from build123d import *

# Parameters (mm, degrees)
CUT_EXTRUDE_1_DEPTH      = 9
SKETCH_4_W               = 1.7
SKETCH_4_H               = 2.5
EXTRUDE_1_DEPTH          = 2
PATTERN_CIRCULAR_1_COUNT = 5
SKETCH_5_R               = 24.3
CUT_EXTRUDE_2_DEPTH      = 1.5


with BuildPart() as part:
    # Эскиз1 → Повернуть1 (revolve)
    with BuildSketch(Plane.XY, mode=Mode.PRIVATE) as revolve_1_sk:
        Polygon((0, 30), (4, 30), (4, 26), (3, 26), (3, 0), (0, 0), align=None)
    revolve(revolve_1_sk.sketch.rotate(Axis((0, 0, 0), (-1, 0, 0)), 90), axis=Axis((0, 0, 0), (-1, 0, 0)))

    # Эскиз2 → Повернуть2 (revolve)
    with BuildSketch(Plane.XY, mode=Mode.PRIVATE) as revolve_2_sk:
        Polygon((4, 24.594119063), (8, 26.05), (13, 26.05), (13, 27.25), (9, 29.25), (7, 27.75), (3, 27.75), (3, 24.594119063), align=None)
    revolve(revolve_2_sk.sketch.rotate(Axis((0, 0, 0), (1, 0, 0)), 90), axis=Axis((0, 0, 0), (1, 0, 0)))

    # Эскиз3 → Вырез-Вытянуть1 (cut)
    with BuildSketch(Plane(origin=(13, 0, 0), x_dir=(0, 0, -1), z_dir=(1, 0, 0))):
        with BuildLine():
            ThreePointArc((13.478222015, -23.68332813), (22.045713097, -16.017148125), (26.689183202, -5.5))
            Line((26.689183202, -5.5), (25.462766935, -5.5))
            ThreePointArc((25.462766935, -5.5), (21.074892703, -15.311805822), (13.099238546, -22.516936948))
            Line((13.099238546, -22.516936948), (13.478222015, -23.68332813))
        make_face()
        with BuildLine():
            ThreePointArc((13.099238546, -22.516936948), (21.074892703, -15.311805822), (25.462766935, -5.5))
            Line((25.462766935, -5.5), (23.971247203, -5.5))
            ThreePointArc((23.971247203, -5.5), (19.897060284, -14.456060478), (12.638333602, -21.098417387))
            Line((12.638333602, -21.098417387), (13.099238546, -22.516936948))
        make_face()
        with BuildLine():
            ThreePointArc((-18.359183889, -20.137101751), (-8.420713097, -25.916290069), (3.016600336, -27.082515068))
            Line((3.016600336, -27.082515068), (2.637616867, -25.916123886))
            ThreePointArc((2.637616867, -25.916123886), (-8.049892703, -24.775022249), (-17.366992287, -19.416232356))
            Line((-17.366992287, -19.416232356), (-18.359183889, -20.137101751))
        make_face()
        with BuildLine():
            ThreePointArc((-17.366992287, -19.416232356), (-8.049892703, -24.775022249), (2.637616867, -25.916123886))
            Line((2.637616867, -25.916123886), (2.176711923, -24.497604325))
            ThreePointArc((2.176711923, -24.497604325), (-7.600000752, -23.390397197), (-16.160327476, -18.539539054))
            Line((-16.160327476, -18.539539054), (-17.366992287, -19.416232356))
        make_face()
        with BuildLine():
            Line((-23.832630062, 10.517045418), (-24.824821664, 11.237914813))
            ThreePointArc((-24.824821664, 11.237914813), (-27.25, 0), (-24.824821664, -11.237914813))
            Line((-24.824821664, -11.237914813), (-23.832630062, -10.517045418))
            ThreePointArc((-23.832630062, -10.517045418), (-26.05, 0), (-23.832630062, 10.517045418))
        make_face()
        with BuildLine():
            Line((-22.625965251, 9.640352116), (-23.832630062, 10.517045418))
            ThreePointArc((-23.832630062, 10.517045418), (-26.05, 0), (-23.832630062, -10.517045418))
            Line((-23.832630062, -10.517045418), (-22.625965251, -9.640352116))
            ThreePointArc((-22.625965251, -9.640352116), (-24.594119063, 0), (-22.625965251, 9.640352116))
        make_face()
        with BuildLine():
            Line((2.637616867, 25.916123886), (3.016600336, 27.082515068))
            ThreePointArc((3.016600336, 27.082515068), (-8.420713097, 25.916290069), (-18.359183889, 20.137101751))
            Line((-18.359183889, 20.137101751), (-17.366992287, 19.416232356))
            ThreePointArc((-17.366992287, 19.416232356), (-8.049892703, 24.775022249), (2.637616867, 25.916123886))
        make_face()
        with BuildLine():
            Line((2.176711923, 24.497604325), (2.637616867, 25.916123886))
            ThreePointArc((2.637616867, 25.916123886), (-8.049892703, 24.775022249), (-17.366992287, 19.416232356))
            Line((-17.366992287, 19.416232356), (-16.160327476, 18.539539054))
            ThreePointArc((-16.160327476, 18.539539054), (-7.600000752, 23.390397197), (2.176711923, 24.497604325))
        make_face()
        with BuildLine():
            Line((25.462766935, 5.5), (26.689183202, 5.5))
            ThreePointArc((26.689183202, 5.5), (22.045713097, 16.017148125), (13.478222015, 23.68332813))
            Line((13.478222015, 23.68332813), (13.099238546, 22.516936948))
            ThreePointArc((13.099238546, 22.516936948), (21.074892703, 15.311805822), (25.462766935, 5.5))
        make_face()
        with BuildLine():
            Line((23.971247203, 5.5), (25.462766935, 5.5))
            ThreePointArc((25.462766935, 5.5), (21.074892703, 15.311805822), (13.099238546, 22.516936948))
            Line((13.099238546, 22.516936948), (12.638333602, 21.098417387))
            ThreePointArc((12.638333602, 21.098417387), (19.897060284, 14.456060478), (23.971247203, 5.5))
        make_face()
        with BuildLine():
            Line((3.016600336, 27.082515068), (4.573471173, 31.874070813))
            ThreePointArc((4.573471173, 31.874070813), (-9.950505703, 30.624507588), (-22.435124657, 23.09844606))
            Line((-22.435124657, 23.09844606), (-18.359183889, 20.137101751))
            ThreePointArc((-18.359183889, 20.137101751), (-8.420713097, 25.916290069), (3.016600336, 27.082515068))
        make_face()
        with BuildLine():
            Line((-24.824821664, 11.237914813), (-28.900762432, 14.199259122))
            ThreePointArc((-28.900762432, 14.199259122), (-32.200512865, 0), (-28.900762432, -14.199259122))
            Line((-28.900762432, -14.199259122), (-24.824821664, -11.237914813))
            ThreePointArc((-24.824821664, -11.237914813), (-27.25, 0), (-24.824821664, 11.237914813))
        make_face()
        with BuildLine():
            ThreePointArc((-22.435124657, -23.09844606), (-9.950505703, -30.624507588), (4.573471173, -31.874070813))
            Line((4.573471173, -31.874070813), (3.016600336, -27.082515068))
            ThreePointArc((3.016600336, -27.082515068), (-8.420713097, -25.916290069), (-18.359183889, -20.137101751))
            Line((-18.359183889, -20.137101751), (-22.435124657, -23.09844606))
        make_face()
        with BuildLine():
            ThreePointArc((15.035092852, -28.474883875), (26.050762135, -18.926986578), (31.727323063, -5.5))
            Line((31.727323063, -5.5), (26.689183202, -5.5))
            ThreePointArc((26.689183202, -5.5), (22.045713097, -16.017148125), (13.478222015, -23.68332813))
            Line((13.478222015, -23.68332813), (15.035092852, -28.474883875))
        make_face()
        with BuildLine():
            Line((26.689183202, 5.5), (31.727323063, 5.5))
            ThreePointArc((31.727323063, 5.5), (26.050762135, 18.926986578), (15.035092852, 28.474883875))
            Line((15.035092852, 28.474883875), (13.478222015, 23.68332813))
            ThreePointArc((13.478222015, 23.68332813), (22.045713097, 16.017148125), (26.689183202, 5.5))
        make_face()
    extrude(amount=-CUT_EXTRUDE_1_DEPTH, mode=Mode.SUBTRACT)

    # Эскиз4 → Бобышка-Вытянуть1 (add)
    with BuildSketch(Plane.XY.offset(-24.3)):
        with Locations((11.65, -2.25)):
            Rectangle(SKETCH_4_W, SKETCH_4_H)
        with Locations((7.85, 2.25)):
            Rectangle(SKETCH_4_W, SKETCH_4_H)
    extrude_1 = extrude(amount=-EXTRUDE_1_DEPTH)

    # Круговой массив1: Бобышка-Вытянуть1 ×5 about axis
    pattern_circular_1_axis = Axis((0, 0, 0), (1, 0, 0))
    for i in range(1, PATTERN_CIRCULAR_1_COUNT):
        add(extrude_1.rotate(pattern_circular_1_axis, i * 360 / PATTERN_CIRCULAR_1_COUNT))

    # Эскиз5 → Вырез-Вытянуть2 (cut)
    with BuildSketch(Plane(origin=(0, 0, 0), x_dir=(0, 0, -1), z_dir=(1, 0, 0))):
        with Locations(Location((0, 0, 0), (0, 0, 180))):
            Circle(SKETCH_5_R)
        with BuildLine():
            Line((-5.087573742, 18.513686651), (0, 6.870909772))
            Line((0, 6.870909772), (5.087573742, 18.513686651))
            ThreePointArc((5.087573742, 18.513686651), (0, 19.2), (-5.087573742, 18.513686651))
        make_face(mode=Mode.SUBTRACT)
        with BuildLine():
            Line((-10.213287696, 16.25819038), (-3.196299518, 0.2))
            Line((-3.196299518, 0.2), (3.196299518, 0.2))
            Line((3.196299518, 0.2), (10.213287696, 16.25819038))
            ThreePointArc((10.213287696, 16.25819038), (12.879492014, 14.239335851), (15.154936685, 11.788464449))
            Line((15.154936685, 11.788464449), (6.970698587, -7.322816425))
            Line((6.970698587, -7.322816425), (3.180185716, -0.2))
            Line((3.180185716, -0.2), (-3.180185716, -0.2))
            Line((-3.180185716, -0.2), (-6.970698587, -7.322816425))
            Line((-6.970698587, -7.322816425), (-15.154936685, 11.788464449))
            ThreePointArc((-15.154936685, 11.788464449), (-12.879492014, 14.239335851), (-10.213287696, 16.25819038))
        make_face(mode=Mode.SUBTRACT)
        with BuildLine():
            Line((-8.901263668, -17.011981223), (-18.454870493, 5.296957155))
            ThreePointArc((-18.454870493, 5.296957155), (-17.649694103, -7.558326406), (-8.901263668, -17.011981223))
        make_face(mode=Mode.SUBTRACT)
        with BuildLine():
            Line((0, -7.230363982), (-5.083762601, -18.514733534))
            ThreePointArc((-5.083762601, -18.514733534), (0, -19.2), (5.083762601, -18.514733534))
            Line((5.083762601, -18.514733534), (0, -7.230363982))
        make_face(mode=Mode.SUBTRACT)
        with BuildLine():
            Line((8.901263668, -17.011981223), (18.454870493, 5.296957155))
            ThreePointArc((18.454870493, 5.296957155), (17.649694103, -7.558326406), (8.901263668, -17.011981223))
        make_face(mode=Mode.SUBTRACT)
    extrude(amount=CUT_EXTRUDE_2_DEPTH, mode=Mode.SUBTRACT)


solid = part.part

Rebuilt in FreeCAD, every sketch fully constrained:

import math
import FreeCAD as App
import Part
import Sketcher
Q = App.Units.Quantity

doc = App.newDocument("Part")
params = doc.addObject("Spreadsheet::Sheet", "Params")
for row, (alias, value) in enumerate([
    ("sketch1_width", "4 mm"),
    ("sketch1_width2", "3 mm"),
    ("sketch1_height", "30 mm"),
    ("revolution_angle", "360 deg"),
    ("sketch2_width", "5 mm"),
    ("sketch2_width2", "4 mm"),
    ("sketch2_width3", "1 mm"),
    ("sketch2_height", "1.2 mm"),
    ("sketch2_length", "2.5 mm"),
    ("revolution2_angle", "360 deg"),
    ("pocket1_length", "9 mm"),
    ("sketch4_width", "1.7 mm"),
    ("sketch4_height", "2.5 mm"),
    ("pad1_length", "2 mm"),
    ("sketch5_diameter", "48.6 mm"),
    ("sketch5_radius", "19.2 mm"),
    ("pocket2_length", "1.5 mm"),
], start=1):
    params.set(f"A{row}", alias)
    params.set(f"B{row}", "=" + value)
    params.setAlias(f"B{row}", alias)

body = doc.addObject("PartDesign::Body", "Body")

sketch1 = body.newObject("Sketcher::SketchObject", "Sketch")
sketch1.AttachmentSupport = (doc.getObject("XY_Plane"), [""])
sketch1.MapMode = "FlatFace"
sketch1.addGeometry([
    Part.LineSegment(App.Vector(4, 30, 0), App.Vector(0, 30, 0)),
    Part.LineSegment(App.Vector(0, 30, 0), App.Vector(0, 0, 0)),
    Part.LineSegment(App.Vector(0, 0, 0), App.Vector(3, 0, 0)),
    Part.LineSegment(App.Vector(3, 0, 0), App.Vector(3, 26, 0)),
    Part.LineSegment(App.Vector(3, 26, 0), App.Vector(4, 26, 0)),
    Part.LineSegment(App.Vector(4, 26, 0), App.Vector(4, 30, 0)),
], False)
sketch1.addConstraint([
    Sketcher.Constraint("Coincident", 0, 2, 1, 1),
    Sketcher.Constraint("Coincident", 1, 2, 2, 1),
    Sketcher.Constraint("Coincident", 2, 2, 3, 1),
    Sketcher.Constraint("Coincident", 3, 2, 4, 1),
    Sketcher.Constraint("Coincident", 4, 2, 5, 1),
    Sketcher.Constraint("Coincident", 5, 2, 0, 1),
    Sketcher.Constraint("Horizontal", 0),
    Sketcher.Constraint("Vertical", 1),
    Sketcher.Constraint("Horizontal", 2),
    Sketcher.Constraint("Vertical", 3),
    Sketcher.Constraint("Horizontal", 4),
    Sketcher.Constraint("Vertical", 5),
    Sketcher.Constraint("Coincident", 1, 2, -1, 1),
    Sketcher.Constraint("Equal", 0, 5),
    Sketcher.Constraint("DistanceX", 0, 2, 0, 1, 4.0),
    Sketcher.Constraint("DistanceX", 2, 1, 2, 2, 3.0),
    Sketcher.Constraint("DistanceY", 1, 2, 1, 1, 30.0),
])
sketch1.setExpression("Constraints[14]", "Params.sketch1_width")
sketch1.setExpression("Constraints[15]", "Params.sketch1_width2")
sketch1.setExpression("Constraints[16]", "Params.sketch1_height")
revolution = body.newObject("PartDesign::Revolution", "Revolution")
revolution.Profile = sketch1
revolution.ReferenceAxis = (sketch1, ["H_Axis"])
revolution.setExpression("Angle", "Params.revolution_angle")

sketch2 = body.newObject("Sketcher::SketchObject", "Sketch001")
sketch2.AttachmentSupport = (doc.getObject("XY_Plane"), [""])
sketch2.MapMode = "FlatFace"
sketch2.addGeometry([
    Part.LineSegment(App.Vector(4, 24.6, 0), App.Vector(8, 26.1, 0)),
    Part.LineSegment(App.Vector(8, 26.1, 0), App.Vector(13, 26.1, 0)),
    Part.LineSegment(App.Vector(13, 26.1, 0), App.Vector(13, 27.2, 0)),
    Part.LineSegment(App.Vector(13, 27.2, 0), App.Vector(9, 29.2, 0)),
    Part.LineSegment(App.Vector(9, 29.2, 0), App.Vector(7, 27.8, 0)),
    Part.LineSegment(App.Vector(7, 27.8, 0), App.Vector(3, 27.8, 0)),
    Part.LineSegment(App.Vector(3, 27.8, 0), App.Vector(3, 24.6, 0)),
    Part.LineSegment(App.Vector(3, 24.6, 0), App.Vector(4, 24.6, 0)),
], False)
sketch2.addConstraint([
    Sketcher.Constraint("Coincident", 0, 2, 1, 1),
    Sketcher.Constraint("Coincident", 1, 2, 2, 1),
    Sketcher.Constraint("Coincident", 2, 2, 3, 1),
    Sketcher.Constraint("Coincident", 3, 2, 4, 1),
    Sketcher.Constraint("Coincident", 4, 2, 5, 1),
    Sketcher.Constraint("Coincident", 5, 2, 6, 1),
    Sketcher.Constraint("Coincident", 6, 2, 7, 1),
    Sketcher.Constraint("Coincident", 7, 2, 0, 1),
    Sketcher.Constraint("Horizontal", 1),
    Sketcher.Constraint("Vertical", 2),
    Sketcher.Constraint("Horizontal", 5),
    Sketcher.Constraint("Vertical", 6),
    Sketcher.Constraint("Horizontal", 7),
    Sketcher.Constraint("DistanceX", 1, 1, 1, 2, 5.0),
    Sketcher.Constraint("DistanceX", 5, 2, 5, 1, 4.0),
    Sketcher.Constraint("DistanceX", 7, 1, 7, 2, 1.0),
    Sketcher.Constraint("Angle", 0, Q("20 deg")),
    Sketcher.Constraint("DistanceY", 2, 1, 2, 2, 1.2),
    Sketcher.Constraint("DistanceX", -1, 1, 0, 2, 8.0),
    Sketcher.Constraint("DistanceX", -1, 1, 3, 2, 9.0),
    Sketcher.Constraint("DistanceX", -1, 1, 4, 2, 7.0),
    Sketcher.Constraint("DistanceY", 2, 2, 3, 2, 2.0),
    Sketcher.Constraint("Distance", 4, 2.5),
    Sketcher.Constraint("DistanceY", -1, 1, 0, 2, 26.05),
])
sketch2.setExpression("Constraints[13]", "Params.sketch2_width")
sketch2.setExpression("Constraints[14]", "Params.sketch2_width2")
sketch2.setExpression("Constraints[15]", "Params.sketch2_width3")
sketch2.setExpression("Constraints[17]", "Params.sketch2_height")
sketch2.setExpression("Constraints[22]", "Params.sketch2_length")
revolution2 = body.newObject("PartDesign::Revolution", "Revolution001")
revolution2.Profile = sketch2
revolution2.ReferenceAxis = (sketch2, ["H_Axis"])
revolution2.setExpression("Angle", "Params.revolution2_angle")

sketch3 = body.newObject("Sketcher::SketchObject", "Sketch002")
sketch3.AttachmentSupport = (doc.getObject("YZ_Plane"), [""])
sketch3.MapMode = "FlatFace"
sketch3.AttachmentOffset = App.Placement(App.Vector(0, 0, 13), App.Rotation())
sketch3.addGeometry([
    Part.ArcOfCircle(Part.Circle(App.Vector(0, 0, 0), App.Vector(0, 0, 1), 24.6), math.radians(-149), math.radians(-103)),
    Part.LineSegment(App.Vector(-21.1, -12.6, 0), App.Vector(-22.5, -13.1, 0)),
    Part.LineSegment(App.Vector(-22.5, -13.1, 0), App.Vector(-23.7, -13.5, 0)),
    Part.LineSegment(App.Vector(-23.7, -13.5, 0), App.Vector(-28.5, -15, 0)),
    Part.ArcOfCircle(Part.Circle(App.Vector(0, 0, 0), App.Vector(0, 0, 1), 32.2), math.radians(-152), math.radians(-100)),
    Part.LineSegment(App.Vector(-5.5, -31.7, 0), App.Vector(-5.5, -24, 0)),
    Part.LineSegment(App.Vector(-27.1, -3, 0), App.Vector(-25.9, -2.6, 0)),
    Part.LineSegment(App.Vector(-25.9, -2.6, 0), App.Vector(-24.5, -2.2, 0)),
    Part.ArcOfCircle(Part.Circle(App.Vector(0, 0, 0), App.Vector(0, 0, 1), 24.6), math.radians(139), math.radians(185)),
    Part.LineSegment(App.Vector(-18.5, 16.2, 0), App.Vector(-19.4, 17.4, 0)),
    Part.LineSegment(App.Vector(-19.4, 17.4, 0), App.Vector(-20.1, 18.4, 0)),
    Part.LineSegment(App.Vector(-20.1, 18.4, 0), App.Vector(-23.1, 22.4, 0)),
    Part.ArcOfCircle(Part.Circle(App.Vector(0, 0, 0), App.Vector(0, 0, 1), 32.2), math.radians(136), math.radians(188)),
    Part.LineSegment(App.Vector(-31.9, -4.6, 0), App.Vector(-27.1, -3, 0)),
    Part.LineSegment(App.Vector(10.5, 23.8, 0), App.Vector(11.2, 24.8, 0)),
    Part.LineSegment(App.Vector(11.2, 24.8, 0), App.Vector(14.2, 28.9, 0)),
    Part.ArcOfCircle(Part.Circle(App.Vector(0, 0, 0), App.Vector(0, 0, 1), 32.2), math.radians(64), math.radians(116)),
    Part.LineSegment(App.Vector(-14.2, 28.9, 0), App.Vector(-11.2, 24.8, 0)),
    Part.LineSegment(App.Vector(-11.2, 24.8, 0), App.Vector(-10.5, 23.8, 0)),
    Part.LineSegment(App.Vector(-10.5, 23.8, 0), App.Vector(-9.6, 22.6, 0)),
    Part.ArcOfCircle(Part.Circle(App.Vector(0, 0, 0), App.Vector(0, 0, 1), 24.6), math.radians(67), math.radians(113)),
    Part.LineSegment(App.Vector(9.6, 22.6, 0), App.Vector(10.5, 23.8, 0)),
    Part.LineSegment(App.Vector(25.9, -2.6, 0), App.Vector(27.1, -3, 0)),
    Part.LineSegment(App.Vector(27.1, -3, 0), App.Vector(31.9, -4.6, 0)),
    Part.ArcOfCircle(Part.Circle(App.Vector(0, 0, 0), App.Vector(0, 0, 1), 32.2), math.radians(-8), math.radians(44)),
    Part.LineSegment(App.Vector(23.1, 22.4, 0), App.Vector(20.1, 18.4, 0)),
    Part.LineSegment(App.Vector(20.1, 18.4, 0), App.Vector(19.4, 17.4, 0)),
    Part.LineSegment(App.Vector(19.4, 17.4, 0), App.Vector(18.5, 16.2, 0)),
    Part.ArcOfCircle(Part.Circle(App.Vector(0, 0, 0), App.Vector(0, 0, 1), 24.6), math.radians(-5), math.radians(41)),
    Part.LineSegment(App.Vector(24.5, -2.2, 0), App.Vector(25.9, -2.6, 0)),
    Part.LineSegment(App.Vector(23.7, -13.5, 0), App.Vector(22.5, -13.1, 0)),
    Part.LineSegment(App.Vector(22.5, -13.1, 0), App.Vector(21.1, -12.6, 0)),
    Part.ArcOfCircle(Part.Circle(App.Vector(0, 0, 0), App.Vector(0, 0, 1), 24.6), math.radians(-77), math.radians(-31)),
    Part.LineSegment(App.Vector(5.5, -24, 0), App.Vector(5.5, -31.7, 0)),
    Part.ArcOfCircle(Part.Circle(App.Vector(0, 0, 0), App.Vector(0, 0, 1), 32.2), math.radians(-80), math.radians(-28)),
    Part.LineSegment(App.Vector(28.5, -15, 0), App.Vector(23.7, -13.5, 0)),
], False)
sketch3.addConstraint([
    Sketcher.Constraint("Coincident", 0, 1, 1, 1),
    Sketcher.Constraint("Coincident", 1, 2, 2, 1),
    Sketcher.Constraint("Coincident", 2, 2, 3, 1),
    Sketcher.Constraint("Coincident", 3, 2, 4, 1),
    Sketcher.Constraint("Coincident", 4, 2, 5, 1),
    Sketcher.Constraint("Coincident", 5, 2, 0, 2),
    Sketcher.Constraint("Coincident", 6, 2, 7, 1),
    Sketcher.Constraint("Coincident", 7, 2, 8, 2),
    Sketcher.Constraint("Coincident", 8, 1, 9, 1),
    Sketcher.Constraint("Coincident", 9, 2, 10, 1),
    Sketcher.Constraint("Coincident", 10, 2, 11, 1),
    Sketcher.Constraint("Coincident", 11, 2, 12, 1),
    Sketcher.Constraint("Coincident", 12, 2, 13, 1),
    Sketcher.Constraint("Coincident", 13, 2, 6, 1),
    Sketcher.Constraint("Coincident", 14, 2, 15, 1),
    Sketcher.Constraint("Coincident", 15, 2, 16, 1),
    Sketcher.Constraint("Coincident", 16, 2, 17, 1),
    Sketcher.Constraint("Coincident", 17, 2, 18, 1),
    Sketcher.Constraint("Coincident", 18, 2, 19, 1),
    Sketcher.Constraint("Coincident", 19, 2, 20, 2),
    Sketcher.Constraint("Coincident", 20, 1, 21, 1),
    Sketcher.Constraint("Coincident", 21, 2, 14, 1),
    Sketcher.Constraint("Coincident", 22, 2, 23, 1),
    Sketcher.Constraint("Coincident", 23, 2, 24, 1),
    Sketcher.Constraint("Coincident", 24, 2, 25, 1),
    Sketcher.Constraint("Coincident", 25, 2, 26, 1),
    Sketcher.Constraint("Coincident", 26, 2, 27, 1),
    Sketcher.Constraint("Coincident", 27, 2, 28, 2),
    Sketcher.Constraint("Coincident", 28, 1, 29, 1),
    Sketcher.Constraint("Coincident", 29, 2, 22, 1),
    Sketcher.Constraint("Coincident", 30, 2, 31, 1),
    Sketcher.Constraint("Coincident", 31, 2, 32, 2),
    Sketcher.Constraint("Coincident", 32, 1, 33, 1),
    Sketcher.Constraint("Coincident", 33, 2, 34, 1),
    Sketcher.Constraint("Coincident", 34, 2, 35, 1),
    Sketcher.Constraint("Coincident", 35, 2, 30, 1),
    Sketcher.Constraint("Vertical", 5),
    Sketcher.Constraint("Vertical", 33),
    Sketcher.Constraint("Coincident", 0, 3, -1, 1),
    Sketcher.Constraint("Coincident", 4, 3, -1, 1),
    Sketcher.Constraint("Coincident", 8, 3, -1, 1),
    Sketcher.Constraint("Coincident", 12, 3, -1, 1),
    Sketcher.Constraint("Coincident", 16, 3, -1, 1),
    Sketcher.Constraint("Coincident", 20, 3, -1, 1),
    Sketcher.Constraint("Coincident", 24, 3, -1, 1),
    Sketcher.Constraint("Coincident", 28, 3, -1, 1),
    Sketcher.Constraint("Coincident", 32, 3, -1, 1),
    Sketcher.Constraint("Coincident", 34, 3, -1, 1),
    Sketcher.Constraint("Equal", 0, 8),
    Sketcher.Constraint("Equal", 4, 12),
    Sketcher.Constraint("Equal", 12, 16),
    Sketcher.Constraint("Equal", 8, 20),
    Sketcher.Constraint("Equal", 16, 24),
    Sketcher.Constraint("Equal", 20, 28),
    Sketcher.Constraint("Equal", 28, 32),
    Sketcher.Constraint("Equal", 24, 34),
    Sketcher.Constraint("Symmetric", 14, 2, 17, 2, -2),
    Sketcher.Constraint("Symmetric", 18, 2, 21, 2, -2),
    Sketcher.Constraint("Symmetric", 13, 2, 22, 2, -2),
    Sketcher.Constraint("Symmetric", 10, 2, 25, 2, -2),
    Sketcher.Constraint("Symmetric", 9, 2, 26, 2, -2),
    Sketcher.Constraint("Symmetric", 6, 2, 29, 2, -2),
    Sketcher.Constraint("Symmetric", 1, 2, 30, 2, -2),
    Sketcher.Constraint("Symmetric", 2, 2, 35, 2, -2),
    Sketcher.Constraint("Parallel", 1, 2),
    Sketcher.Constraint("Parallel", 2, 3),
    Sketcher.Constraint("Parallel", 3, 6),
    Sketcher.Constraint("Parallel", 6, 7),
    Sketcher.Constraint("Parallel", 9, 10),
    Sketcher.Constraint("Parallel", 10, 11),
    Sketcher.Constraint("Parallel", 7, 13),
    Sketcher.Constraint("Parallel", 14, 15),
    Sketcher.Constraint("Parallel", 11, 17),
    Sketcher.Constraint("Parallel", 17, 18),
    Sketcher.Constraint("Parallel", 18, 19),
    Sketcher.Constraint("Parallel", 15, 21),
    Sketcher.Constraint("Parallel", 22, 23),
    Sketcher.Constraint("Parallel", 21, 25),
    Sketcher.Constraint("Parallel", 26, 27),
    Sketcher.Constraint("Parallel", 23, 29),
    Sketcher.Constraint("Parallel", 30, 31),
    Sketcher.Constraint("Parallel", 31, 35),
    Sketcher.Constraint("Horizontal", 5, 2, 32, 1),
    Sketcher.Constraint("Equal", 2, 6),
    Sketcher.Constraint("Equal", 1, 7),
    Sketcher.Constraint("Equal", 7, 9),
    Sketcher.Constraint("Equal", 6, 10),
    Sketcher.Constraint("Equal", 3, 11),
    Sketcher.Constraint("Equal", 11, 13),
    Sketcher.Constraint("Equal", 10, 14),
    Sketcher.Constraint("Equal", 13, 15),
    Sketcher.Constraint("Equal", 9, 19),
    Sketcher.Constraint("Angle", 1, Q("-162 deg")),
    Sketcher.Constraint("Angle", 9, Q("126 deg")),
    Sketcher.Constraint("DistanceX", 5, 2, 32, 1, 11.0),
    Sketcher.Constraint("Radius", 0, 24.594119),
    Sketcher.Constraint("Radius", 4, 32.200513),
    Sketcher.Constraint("DistanceX", 10, 2, -1, 1, 20.137102),
    Sketcher.Constraint("DistanceY", 13, 2, -1, 1, 3.0166),
    Sketcher.Constraint("DistanceY", 6, 2, 10, 2, 20.996801),
])
pocket1 = body.newObject("PartDesign::Pocket", "Pocket")
pocket1.Profile = sketch3
pocket1.setExpression("Length", "Params.pocket1_length")

sketch4 = body.newObject("Sketcher::SketchObject", "Sketch003")
sketch4.AttachmentSupport = (doc.getObject("XY_Plane"), [""])
sketch4.MapMode = "FlatFace"
sketch4.AttachmentOffset = App.Placement(App.Vector(0, 0, -24.3), App.Rotation())
sketch4.addGeometry([
    Part.LineSegment(App.Vector(10.8, -1, 0), App.Vector(10.8, -3.5, 0)),
    Part.LineSegment(App.Vector(10.8, -3.5, 0), App.Vector(12.5, -3.5, 0)),
    Part.LineSegment(App.Vector(12.5, -3.5, 0), App.Vector(12.5, -1, 0)),
    Part.LineSegment(App.Vector(12.5, -1, 0), App.Vector(10.8, -1, 0)),
    Part.LineSegment(App.Vector(7, 3.5, 0), App.Vector(7, 1, 0)),
    Part.LineSegment(App.Vector(7, 1, 0), App.Vector(8.7, 1, 0)),
    Part.LineSegment(App.Vector(8.7, 1, 0), App.Vector(8.7, 3.5, 0)),
    Part.LineSegment(App.Vector(8.7, 3.5, 0), App.Vector(7, 3.5, 0)),
], False)
sketch4.addConstraint([
    Sketcher.Constraint("Coincident", 0, 2, 1, 1),
    Sketcher.Constraint("Coincident", 1, 2, 2, 1),
    Sketcher.Constraint("Coincident", 2, 2, 3, 1),
    Sketcher.Constraint("Coincident", 3, 2, 0, 1),
    Sketcher.Constraint("Coincident", 4, 2, 5, 1),
    Sketcher.Constraint("Coincident", 5, 2, 6, 1),
    Sketcher.Constraint("Coincident", 6, 2, 7, 1),
    Sketcher.Constraint("Coincident", 7, 2, 4, 1),
    Sketcher.Constraint("Vertical", 0),
    Sketcher.Constraint("Horizontal", 1),
    Sketcher.Constraint("Vertical", 2),
    Sketcher.Constraint("Horizontal", 3),
    Sketcher.Constraint("Vertical", 4),
    Sketcher.Constraint("Horizontal", 5),
    Sketcher.Constraint("Vertical", 6),
    Sketcher.Constraint("Horizontal", 7),
    Sketcher.Constraint("Equal", 3, 5),
    Sketcher.Constraint("Equal", 2, 4),
    Sketcher.Constraint("DistanceX", 1, 1, 1, 2, 1.7),
    Sketcher.Constraint("DistanceY", 0, 2, 0, 1, 2.5),
    Sketcher.Constraint("DistanceY", 2, 2, -1, 1, 1.0),
    Sketcher.Constraint("DistanceX", -1, 1, 4, 2, 7.0),
    Sketcher.Constraint("DistanceY", -1, 1, 4, 2, 1.0),
    Sketcher.Constraint("DistanceX", -1, 1, 0, 2, 10.8),
])
sketch4.setExpression("Constraints[18]", "Params.sketch4_width")
sketch4.setExpression("Constraints[19]", "Params.sketch4_height")
pad1 = body.newObject("PartDesign::Pad", "Pad")
pad1.Profile = sketch4
pad1.setExpression("Length", "Params.pad1_length")
pad1.Reversed = True
doc.recompute()

polarpattern = body.newObject("PartDesign::PolarPattern", "PolarPattern")
polarpattern.Originals = [pad1]
polarpattern.Axis = (doc.getObject("X_Axis"), [""])
polarpattern.Angle = 360
polarpattern.Occurrences = 5
body.Tip = polarpattern

sketch5 = body.newObject("Sketcher::SketchObject", "Sketch004")
sketch5.AttachmentSupport = (doc.getObject("YZ_Plane"), [""])
sketch5.MapMode = "FlatFace"
sketch5.addGeometry([
    Part.Circle(App.Vector(0, 0, 0), App.Vector(0, 0, 1), 24),
    Part.LineSegment(App.Vector(7, 0, 0), App.Vector(19, 5, 0)),
    Part.ArcOfCircle(Part.Circle(App.Vector(0, 0, 0), App.Vector(0, 0, 1), 19), math.radians(-15), math.radians(15)),
    Part.LineSegment(App.Vector(19, -5, 0), App.Vector(7, 0, 0)),
    Part.ArcOfCircle(Part.Circle(App.Vector(0, 0, 0), App.Vector(0, 0, 1), 19), math.radians(32.14), math.radians(52.12)),
    Part.LineSegment(App.Vector(16, 10, 0), App.Vector(0, 3, 0)),
    Part.LineSegment(App.Vector(0, 3, 0), App.Vector(0, -3, 0)),
    Part.LineSegment(App.Vector(0, -3, 0), App.Vector(16, -10, 0)),
    Part.ArcOfCircle(Part.Circle(App.Vector(0, 0, 0), App.Vector(0, 0, 1), 19), math.radians(-52.12), math.radians(-32.14)),
    Part.LineSegment(App.Vector(12, -15, 0), App.Vector(-7, -7, 0)),
    Part.LineSegment(App.Vector(-7, -7, 0), App.Vector(0, -3, 0)),
    Part.LineSegment(App.Vector(0, -3, 0), App.Vector(0, 3, 0)),
    Part.LineSegment(App.Vector(0, 3, 0), App.Vector(-7, 7, 0)),
    Part.LineSegment(App.Vector(-7, 7, 0), App.Vector(12, 15, 0)),
    Part.ArcOfCircle(Part.Circle(App.Vector(0, 0, 0), App.Vector(0, 0, 1), 19), math.radians(-152), math.radians(-74)),
    Part.LineSegment(App.Vector(-17, -9, 0), App.Vector(5, -18, 0)),
    Part.LineSegment(App.Vector(5, 18, 0), App.Vector(-17, 9, 0)),
    Part.ArcOfCircle(Part.Circle(App.Vector(0, 0, 0), App.Vector(0, 0, 1), 19), math.radians(74), math.radians(152)),
    Part.LineSegment(App.Vector(-19, 5, 0), App.Vector(-7, 0, 0)),
    Part.LineSegment(App.Vector(-7, 0, 0), App.Vector(-19, -5, 0)),
    Part.ArcOfCircle(Part.Circle(App.Vector(0, 0, 0), App.Vector(0, 0, 1), 19), math.radians(165), math.radians(195)),
], False)
sketch5.addConstraint([
    Sketcher.Constraint("Coincident", 1, 2, 2, 2),
    Sketcher.Constraint("Coincident", 2, 1, 3, 1),
    Sketcher.Constraint("Coincident", 3, 2, 1, 1),
    Sketcher.Constraint("Coincident", 4, 1, 5, 1),
    Sketcher.Constraint("Coincident", 5, 2, 6, 1),
    Sketcher.Constraint("Coincident", 6, 2, 7, 1),
    Sketcher.Constraint("Coincident", 7, 2, 8, 2),
    Sketcher.Constraint("Coincident", 8, 1, 9, 1),
    Sketcher.Constraint("Coincident", 9, 2, 10, 1),
    Sketcher.Constraint("Coincident", 10, 2, 11, 1),
    Sketcher.Constraint("Coincident", 11, 2, 12, 1),
    Sketcher.Constraint("Coincident", 12, 2, 13, 1),
    Sketcher.Constraint("Coincident", 13, 2, 4, 2),
    Sketcher.Constraint("Coincident", 14, 1, 15, 1),
    Sketcher.Constraint("Coincident", 15, 2, 14, 2),
    Sketcher.Constraint("Coincident", 16, 1, 17, 1),
    Sketcher.Constraint("Coincident", 17, 2, 16, 2),
    Sketcher.Constraint("Coincident", 18, 2, 19, 1),
    Sketcher.Constraint("Coincident", 19, 2, 20, 2),
    Sketcher.Constraint("Coincident", 20, 1, 18, 1),
    Sketcher.Constraint("Vertical", 6),
    Sketcher.Constraint("Vertical", 11),
    Sketcher.Constraint("Coincident", 0, 3, -1, 1),
    Sketcher.Constraint("Coincident", 2, 3, -1, 1),
    Sketcher.Constraint("Coincident", 4, 3, -1, 1),
    Sketcher.Constraint("Coincident", 8, 3, -1, 1),
    Sketcher.Constraint("Coincident", 14, 3, -1, 1),
    Sketcher.Constraint("Coincident", 17, 3, -1, 1),
    Sketcher.Constraint("Coincident", 20, 3, -1, 1),
    Sketcher.Constraint("Equal", 2, 4),
    Sketcher.Constraint("Equal", 4, 8),
    Sketcher.Constraint("Equal", 8, 14),
    Sketcher.Constraint("Equal", 14, 17),
    Sketcher.Constraint("Equal", 17, 20),
    Sketcher.Constraint("Symmetric", 9, 2, 12, 2, -1),
    Sketcher.Constraint("PointOnObject", 3, 2, -1),
    Sketcher.Constraint("PointOnObject", 18, 2, -1),
    Sketcher.Constraint("Parallel", 1, 5),
    Sketcher.Constraint("Parallel", 3, 7),
    Sketcher.Constraint("Parallel", 9, 15),
    Sketcher.Constraint("Parallel", 13, 16),
    Sketcher.Constraint("Vertical", 1, 2, 2, 1),
    Sketcher.Constraint("Vertical", 4, 1, 7, 2),
    Sketcher.Constraint("Vertical", 8, 1, 13, 2),
    Sketcher.Constraint("Vertical", 15, 2, 16, 1),
    Sketcher.Constraint("Vertical", 19, 2, 20, 1),
    Sketcher.Constraint("Equal", 10, 12),
    Sketcher.Constraint("Diameter", 0, 48.6),
    Sketcher.Constraint("Radius", 2, 19.2),
    Sketcher.Constraint("DistanceX", -1, 1, 5, 2, 0.2),
    Sketcher.Constraint("DistanceX", 10, 2, -1, 1, 0.2),
    Sketcher.Constraint("DistanceY", 6, 2, 6, 1, 6.392599),
    Sketcher.Constraint("Distance", 15, 24.268501),
    Sketcher.Constraint("DistanceY", 11, 1, 11, 2, 6.360371),
    Sketcher.Constraint("DistanceY", 9, 2, -1, 1, 6.970699),
    Sketcher.Constraint("DistanceY", 14, 1, 19, 2, 3.817501),
    Sketcher.Constraint("Distance", 5, 17.524372),
    Sketcher.Constraint("Distance", 9, 20.789969),
    Sketcher.Constraint("DistanceX", -1, 1, 3, 2, 6.87091),
    Sketcher.Constraint("DistanceX", 14, 1, -1, 1, 17.011981),
    Sketcher.Constraint("DistanceX", 19, 2, 18, 2, 11.28437),
])
sketch5.setExpression("Constraints[47]", "Params.sketch5_diameter")
sketch5.setExpression("Constraints[48]", "Params.sketch5_radius")
pocket2 = body.newObject("PartDesign::Pocket", "Pocket001")
pocket2.Profile = sketch5
pocket2.setExpression("Length", "Params.pocket2_length")
pocket2.Reversed = True

doc.recompute()
